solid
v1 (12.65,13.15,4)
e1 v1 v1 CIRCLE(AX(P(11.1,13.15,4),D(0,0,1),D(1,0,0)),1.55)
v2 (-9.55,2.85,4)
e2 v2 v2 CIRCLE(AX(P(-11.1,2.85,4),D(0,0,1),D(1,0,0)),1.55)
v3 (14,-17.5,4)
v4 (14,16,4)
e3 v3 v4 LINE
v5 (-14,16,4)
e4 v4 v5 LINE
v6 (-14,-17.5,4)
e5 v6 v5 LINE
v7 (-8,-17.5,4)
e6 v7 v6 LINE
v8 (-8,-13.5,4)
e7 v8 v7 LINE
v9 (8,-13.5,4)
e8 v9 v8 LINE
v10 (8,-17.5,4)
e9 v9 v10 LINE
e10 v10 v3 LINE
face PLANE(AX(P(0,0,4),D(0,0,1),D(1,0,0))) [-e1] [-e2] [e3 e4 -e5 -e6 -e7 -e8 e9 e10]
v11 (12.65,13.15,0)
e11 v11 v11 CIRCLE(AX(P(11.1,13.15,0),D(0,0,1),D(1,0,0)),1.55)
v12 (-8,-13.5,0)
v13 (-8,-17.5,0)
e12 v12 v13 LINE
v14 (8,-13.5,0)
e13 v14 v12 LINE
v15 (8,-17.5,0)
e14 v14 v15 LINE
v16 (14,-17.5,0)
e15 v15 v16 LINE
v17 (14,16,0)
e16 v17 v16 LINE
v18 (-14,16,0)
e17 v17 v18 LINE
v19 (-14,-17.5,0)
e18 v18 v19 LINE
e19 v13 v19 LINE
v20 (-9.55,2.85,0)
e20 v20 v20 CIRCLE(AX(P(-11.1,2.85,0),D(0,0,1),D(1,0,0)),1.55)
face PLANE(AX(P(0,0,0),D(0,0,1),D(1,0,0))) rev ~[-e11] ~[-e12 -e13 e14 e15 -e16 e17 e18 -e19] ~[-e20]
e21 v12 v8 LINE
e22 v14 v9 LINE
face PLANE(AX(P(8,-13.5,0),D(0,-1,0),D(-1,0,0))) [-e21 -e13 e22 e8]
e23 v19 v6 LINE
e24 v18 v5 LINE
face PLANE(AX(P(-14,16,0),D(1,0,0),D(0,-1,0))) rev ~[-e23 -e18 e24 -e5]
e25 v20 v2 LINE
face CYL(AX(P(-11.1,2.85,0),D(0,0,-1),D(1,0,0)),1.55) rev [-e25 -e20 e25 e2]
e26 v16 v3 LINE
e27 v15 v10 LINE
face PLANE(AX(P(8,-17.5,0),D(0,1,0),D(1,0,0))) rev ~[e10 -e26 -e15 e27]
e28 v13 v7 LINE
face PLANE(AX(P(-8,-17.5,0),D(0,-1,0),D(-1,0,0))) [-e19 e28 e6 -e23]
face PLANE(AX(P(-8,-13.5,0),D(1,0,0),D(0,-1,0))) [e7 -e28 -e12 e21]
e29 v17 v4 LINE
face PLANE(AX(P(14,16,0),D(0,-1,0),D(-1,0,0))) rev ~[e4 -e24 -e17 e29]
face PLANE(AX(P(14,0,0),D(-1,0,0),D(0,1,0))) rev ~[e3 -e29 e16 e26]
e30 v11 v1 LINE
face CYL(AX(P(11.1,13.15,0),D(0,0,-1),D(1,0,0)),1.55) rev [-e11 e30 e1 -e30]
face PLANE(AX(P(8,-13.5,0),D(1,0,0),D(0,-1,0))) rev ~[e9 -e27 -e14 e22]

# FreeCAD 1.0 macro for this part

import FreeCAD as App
import Part
import Sketcher
Q = App.Units.Quantity

doc = App.newDocument("Part")
body = doc.addObject("PartDesign::Body", "Body")

# Sketch on XY plane
sketch1 = doc.addObject("Sketcher::SketchObject", "Sketch")
body.addObject(sketch1)
sketch1.AttachmentSupport = (doc.XY_Plane, [""])
sketch1.MapMode = "FlatFace"
sketch1.addGeometry([
    Part.LineSegment(App.Vector(-14, 16, 0), App.Vector(-14, -17.5, 0)),  # 0
    Part.LineSegment(App.Vector(-14, -17.5, 0), App.Vector(-8, -17.5, 0)),  # 1
    Part.LineSegment(App.Vector(-8, -17.5, 0), App.Vector(-8, -13.5, 0)),  # 2
    Part.LineSegment(App.Vector(-8, -13.5, 0), App.Vector(8, -13.5, 0)),  # 3
    Part.LineSegment(App.Vector(8, -13.5, 0), App.Vector(8, -17.5, 0)),  # 4
    Part.LineSegment(App.Vector(8, -17.5, 0), App.Vector(14, -17.5, 0)),  # 5
    Part.LineSegment(App.Vector(14, -17.5, 0), App.Vector(14, 16, 0)),  # 6
    Part.LineSegment(App.Vector(14, 16, 0), App.Vector(-14, 16, 0)),  # 7
    Part.Circle(App.Vector(-11.1, 2.9, 0), App.Vector(0, 0, 1), 1.6),  # 8
    Part.Circle(App.Vector(11.1, 13.2, 0), App.Vector(0, 0, 1), 1.6),  # 9
], False)
sketch1.addConstraint([
    Sketcher.Constraint("Coincident", 0, 2, 1, 1),
    Sketcher.Constraint("Coincident", 1, 2, 2, 1),
    Sketcher.Constraint("Coincident", 2, 2, 3, 1),
    Sketcher.Constraint("Coincident", 3, 2, 4, 1),
    Sketcher.Constraint("Coincident", 4, 2, 5, 1),
    Sketcher.Constraint("Coincident", 5, 2, 6, 1),
    Sketcher.Constraint("Coincident", 6, 2, 7, 1),
    Sketcher.Constraint("Coincident", 7, 2, 0, 1),
    Sketcher.Constraint("Vertical", 0),
    Sketcher.Constraint("Horizontal", 1),
    Sketcher.Constraint("Vertical", 2),
    Sketcher.Constraint("Horizontal", 3),
    Sketcher.Constraint("Vertical", 4),
    Sketcher.Constraint("Horizontal", 5),
    Sketcher.Constraint("Vertical", 6),
    Sketcher.Constraint("Horizontal", 7),
    Sketcher.Constraint("Equal", 8, 9),
    Sketcher.Constraint("Symmetric", 1, 2, 4, 2, -2),
    Sketcher.Constraint("Equal", 1, 5),
    Sketcher.Constraint("Diameter", 8, Q("3.1 mm")),
    Sketcher.Constraint("DistanceX", 1, 1, 1, 2, Q("6 mm")),
    Sketcher.Constraint("DistanceX", 3, 1, 3, 2, Q("16 mm")),
    Sketcher.Constraint("DistanceY", 2, 1, 2, 2, Q("4 mm")),
    Sketcher.Constraint("DistanceY", -1, 1, 6, 2, Q("16 mm")),
    Sketcher.Constraint("DistanceX", 8, 3, 9, 3, Q("22.2 mm")),
    Sketcher.Constraint("DistanceY", 8, 3, 9, 3, Q("10.3 mm")),
    Sketcher.Constraint("DistanceX", 8, 3, 1, 2, Q("3.1 mm")),
    Sketcher.Constraint("DistanceY", 3, 2, 6, 2, Q("29.5 mm")),
    Sketcher.Constraint("DistanceY", -1, 1, 8, 3, Q("2.85 mm")),
])
pad1 = doc.addObject("PartDesign::Pad", "Pad")
body.addObject(pad1)
pad1.Profile = sketch1
pad1.Length = 4

doc.recompute()
